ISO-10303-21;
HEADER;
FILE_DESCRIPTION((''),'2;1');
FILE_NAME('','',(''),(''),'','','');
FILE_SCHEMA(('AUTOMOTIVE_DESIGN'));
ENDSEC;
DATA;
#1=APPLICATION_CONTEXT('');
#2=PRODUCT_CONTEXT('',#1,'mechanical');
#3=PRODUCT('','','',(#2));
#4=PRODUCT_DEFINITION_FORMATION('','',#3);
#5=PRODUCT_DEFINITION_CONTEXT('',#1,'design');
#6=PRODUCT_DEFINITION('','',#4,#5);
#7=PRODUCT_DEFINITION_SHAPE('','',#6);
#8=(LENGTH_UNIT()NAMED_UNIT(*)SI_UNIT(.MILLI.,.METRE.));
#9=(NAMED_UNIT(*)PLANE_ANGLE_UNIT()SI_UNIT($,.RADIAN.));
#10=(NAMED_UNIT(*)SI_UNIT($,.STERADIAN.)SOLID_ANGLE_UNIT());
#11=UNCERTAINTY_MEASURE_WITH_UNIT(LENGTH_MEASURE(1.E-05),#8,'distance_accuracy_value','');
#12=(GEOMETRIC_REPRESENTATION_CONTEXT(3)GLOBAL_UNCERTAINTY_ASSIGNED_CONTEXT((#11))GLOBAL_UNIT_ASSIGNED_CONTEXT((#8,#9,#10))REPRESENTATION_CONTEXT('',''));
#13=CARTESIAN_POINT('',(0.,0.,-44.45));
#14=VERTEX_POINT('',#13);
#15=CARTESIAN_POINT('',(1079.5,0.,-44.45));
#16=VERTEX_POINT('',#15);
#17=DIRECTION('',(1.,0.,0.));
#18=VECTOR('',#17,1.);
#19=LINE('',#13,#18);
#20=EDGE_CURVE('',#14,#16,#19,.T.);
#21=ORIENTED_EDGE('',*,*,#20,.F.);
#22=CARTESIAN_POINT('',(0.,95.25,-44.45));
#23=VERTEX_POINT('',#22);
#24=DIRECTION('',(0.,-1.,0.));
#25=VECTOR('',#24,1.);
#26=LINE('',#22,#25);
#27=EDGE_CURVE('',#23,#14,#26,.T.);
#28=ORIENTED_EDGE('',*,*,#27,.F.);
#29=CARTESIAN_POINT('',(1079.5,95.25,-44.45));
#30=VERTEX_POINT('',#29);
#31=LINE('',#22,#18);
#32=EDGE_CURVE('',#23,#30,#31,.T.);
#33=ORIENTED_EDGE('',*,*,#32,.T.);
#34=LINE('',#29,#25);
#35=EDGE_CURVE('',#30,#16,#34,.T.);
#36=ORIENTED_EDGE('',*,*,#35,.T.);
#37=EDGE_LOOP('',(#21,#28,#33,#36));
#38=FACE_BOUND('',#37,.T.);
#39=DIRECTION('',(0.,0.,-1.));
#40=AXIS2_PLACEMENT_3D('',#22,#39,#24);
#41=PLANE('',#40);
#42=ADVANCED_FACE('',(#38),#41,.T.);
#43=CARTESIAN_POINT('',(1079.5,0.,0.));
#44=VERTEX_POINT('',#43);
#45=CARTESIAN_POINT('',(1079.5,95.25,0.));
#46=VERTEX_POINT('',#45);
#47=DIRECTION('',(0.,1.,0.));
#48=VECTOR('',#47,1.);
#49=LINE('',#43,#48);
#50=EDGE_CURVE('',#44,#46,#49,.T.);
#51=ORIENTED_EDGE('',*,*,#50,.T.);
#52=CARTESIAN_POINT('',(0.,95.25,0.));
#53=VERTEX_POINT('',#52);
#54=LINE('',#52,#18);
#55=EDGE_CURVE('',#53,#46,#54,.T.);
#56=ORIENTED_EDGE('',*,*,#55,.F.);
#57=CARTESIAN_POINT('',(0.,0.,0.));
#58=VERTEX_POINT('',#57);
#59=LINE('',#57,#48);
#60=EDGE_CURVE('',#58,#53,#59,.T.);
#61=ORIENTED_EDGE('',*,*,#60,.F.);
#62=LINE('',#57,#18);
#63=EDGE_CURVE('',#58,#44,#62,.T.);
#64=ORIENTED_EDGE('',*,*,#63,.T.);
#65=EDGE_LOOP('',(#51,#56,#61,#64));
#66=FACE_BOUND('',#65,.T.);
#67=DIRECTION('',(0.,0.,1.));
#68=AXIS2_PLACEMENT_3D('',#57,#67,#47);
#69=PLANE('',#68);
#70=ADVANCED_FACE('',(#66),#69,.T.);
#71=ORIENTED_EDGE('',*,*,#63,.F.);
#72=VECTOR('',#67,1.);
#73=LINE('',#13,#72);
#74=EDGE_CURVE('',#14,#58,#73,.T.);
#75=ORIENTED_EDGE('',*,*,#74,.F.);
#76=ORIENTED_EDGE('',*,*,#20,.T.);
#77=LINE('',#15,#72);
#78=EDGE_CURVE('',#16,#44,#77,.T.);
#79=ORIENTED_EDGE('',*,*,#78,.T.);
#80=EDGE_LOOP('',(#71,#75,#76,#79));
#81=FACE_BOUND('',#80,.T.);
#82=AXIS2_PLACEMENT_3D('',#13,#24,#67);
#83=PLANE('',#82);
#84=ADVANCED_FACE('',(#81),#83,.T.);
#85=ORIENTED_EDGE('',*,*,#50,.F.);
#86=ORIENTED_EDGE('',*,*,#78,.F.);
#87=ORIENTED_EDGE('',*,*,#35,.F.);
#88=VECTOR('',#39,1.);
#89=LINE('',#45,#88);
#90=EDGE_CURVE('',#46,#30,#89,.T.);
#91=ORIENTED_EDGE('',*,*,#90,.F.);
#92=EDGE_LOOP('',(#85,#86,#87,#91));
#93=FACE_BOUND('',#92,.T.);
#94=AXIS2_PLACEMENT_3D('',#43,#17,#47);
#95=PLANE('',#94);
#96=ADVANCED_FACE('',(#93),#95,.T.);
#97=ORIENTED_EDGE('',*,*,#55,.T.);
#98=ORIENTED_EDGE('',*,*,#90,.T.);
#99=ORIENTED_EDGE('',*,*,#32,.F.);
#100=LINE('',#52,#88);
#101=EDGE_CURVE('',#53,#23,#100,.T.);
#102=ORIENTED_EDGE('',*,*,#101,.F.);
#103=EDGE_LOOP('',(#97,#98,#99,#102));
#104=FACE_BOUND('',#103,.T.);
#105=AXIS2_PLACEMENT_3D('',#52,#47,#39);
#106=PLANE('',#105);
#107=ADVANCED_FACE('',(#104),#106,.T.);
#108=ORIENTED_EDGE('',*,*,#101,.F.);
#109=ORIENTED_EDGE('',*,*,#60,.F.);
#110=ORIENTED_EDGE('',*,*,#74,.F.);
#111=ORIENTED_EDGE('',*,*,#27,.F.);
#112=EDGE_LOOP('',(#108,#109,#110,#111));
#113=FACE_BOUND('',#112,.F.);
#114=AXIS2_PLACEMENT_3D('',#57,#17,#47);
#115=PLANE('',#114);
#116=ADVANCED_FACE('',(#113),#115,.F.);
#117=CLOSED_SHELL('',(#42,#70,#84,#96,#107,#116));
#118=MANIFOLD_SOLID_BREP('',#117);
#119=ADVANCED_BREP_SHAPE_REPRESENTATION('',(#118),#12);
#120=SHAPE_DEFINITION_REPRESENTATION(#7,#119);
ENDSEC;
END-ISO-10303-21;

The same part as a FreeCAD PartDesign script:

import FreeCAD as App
import Part
import Sketcher
from FreeCAD import Vector
Q = App.Units.Quantity

doc = App.newDocument("Part")
params = doc.addObject("Spreadsheet::Sheet", "Params")
for row, (alias, value) in enumerate([
    ("sketch1_width", "3.75 in"),
    ("sketch1_height", "1.75 in"),
    ("pad1_length", "42.5 in"),
], start=1):
    params.set(f"A{row}", alias)
    params.set(f"B{row}", "=" + value)
    params.setAlias(f"B{row}", alias)

body = doc.addObject("PartDesign::Body", "Body")

sketch1 = body.newObject("Sketcher::SketchObject", "Sketch")
sketch1.AttachmentSupport = (doc.getObject("YZ_Plane"), [""])
sketch1.MapMode = "FlatFace"
sketch1.addGeometry([
    Part.LineSegment(Vector(95, 0, 0), Vector(0, 0, 0)),
    Part.LineSegment(Vector(0, 0, 0), Vector(0, -44, 0)),
    Part.LineSegment(Vector(0, -44, 0), Vector(95, -44, 0)),
    Part.LineSegment(Vector(95, -44, 0), Vector(95, 0, 0)),
], False)
sketch1.addConstraint([
    Sketcher.Constraint("Coincident", 0, 2, 1, 1),
    Sketcher.Constraint("Coincident", 1, 2, 2, 1),
    Sketcher.Constraint("Coincident", 2, 2, 3, 1),
    Sketcher.Constraint("Coincident", 3, 2, 0, 1),
    Sketcher.Constraint("Horizontal", 0),
    Sketcher.Constraint("Vertical", 1),
    Sketcher.Constraint("Horizontal", 2),
    Sketcher.Constraint("Vertical", 3),
    Sketcher.Constraint("Coincident", 0, 2, -1, 1),
    Sketcher.Constraint("DistanceX", 0, 2, 0, 1, Q("3.75 in")),
    Sketcher.Constraint("DistanceY", 1, 2, 1, 1, Q("1.75 in")),
])
sketch1.setExpression("Constraints[9]", "Params.sketch1_width")
sketch1.setExpression("Constraints[10]", "Params.sketch1_height")
pad1 = body.newObject("PartDesign::Pad", "Pad")
pad1.Profile = sketch1
pad1.setExpression("Length", "Params.pad1_length")

doc.recompute()
